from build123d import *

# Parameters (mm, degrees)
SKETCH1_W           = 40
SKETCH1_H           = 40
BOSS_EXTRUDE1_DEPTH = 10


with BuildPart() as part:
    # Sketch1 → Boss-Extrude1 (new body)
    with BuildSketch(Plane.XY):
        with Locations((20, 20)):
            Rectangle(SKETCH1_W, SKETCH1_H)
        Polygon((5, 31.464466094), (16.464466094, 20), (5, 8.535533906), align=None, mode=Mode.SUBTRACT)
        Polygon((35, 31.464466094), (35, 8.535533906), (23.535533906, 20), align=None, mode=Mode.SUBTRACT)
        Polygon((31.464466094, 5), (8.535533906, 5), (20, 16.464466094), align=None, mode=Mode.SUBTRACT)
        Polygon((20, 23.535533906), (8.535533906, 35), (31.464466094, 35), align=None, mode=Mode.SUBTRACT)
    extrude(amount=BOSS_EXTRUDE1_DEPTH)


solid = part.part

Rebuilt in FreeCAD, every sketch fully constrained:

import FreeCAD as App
import Part
import Sketcher
Q = App.Units.Quantity


def add_polygon(sketch, points):
    """Adds a closed chain of lines whose ends are joined by coincident constraints."""
    first, n = sketch.GeometryCount, len(points)
    for a, b in zip(points, points[1:] + points[:1]):
        sketch.addGeometry(Part.LineSegment(App.Vector(*a, 0), App.Vector(*b, 0)), False)
    for i in range(n):
        sketch.addConstraint(Sketcher.Constraint("Coincident", first + i, 2, first + (i + 1) % n, 1))

doc = App.newDocument("Part")
body = doc.addObject("PartDesign::Body", "Body")

sketch1 = body.newObject("Sketcher::SketchObject", "Sketch")
sketch1.AttachmentSupport = (doc.getObject("XY_Plane"), [""])
sketch1.MapMode = "FlatFace"
add_polygon(sketch1, [(0, 40), (0, 0), (40, 0), (40, 40)])
add_polygon(sketch1, [(20, 16), (31, 5), (9, 5)])
add_polygon(sketch1, [(5, 9), (5, 31), (16, 20)])
add_polygon(sketch1, [(24, 20), (35, 31), (35, 9)])
add_polygon(sketch1, [(31, 35), (20, 24), (9, 35)])
sketch1.addConstraint([
    Sketcher.Constraint("Vertical", 0),
    Sketcher.Constraint("Horizontal", 1),
    Sketcher.Constraint("Vertical", 2),
    Sketcher.Constraint("Horizontal", 3),
    Sketcher.Constraint("Horizontal", 5),
    Sketcher.Constraint("Vertical", 7),
    Sketcher.Constraint("Vertical", 11),
    Sketcher.Constraint("Horizontal", 15),
    Sketcher.Constraint("Coincident", 0, 2, -1, 1),
    Sketcher.Constraint("Perpendicular", 4, 6),
    Sketcher.Constraint("Perpendicular", 6, 8),
    Sketcher.Constraint("Perpendicular", 8, 9),
    Sketcher.Constraint("Parallel", 9, 10),
    Sketcher.Constraint("Perpendicular", 10, 12),
    Sketcher.Constraint("Perpendicular", 12, 13),
    Sketcher.Constraint("Perpendicular", 13, 14),
    Sketcher.Constraint("Horizontal", 7, 2, 10, 2),
    Sketcher.Constraint("Horizontal", 9, 2, 11, 2),
    Sketcher.Constraint("Horizontal", 8, 2, 12, 2),
    Sketcher.Constraint("Vertical", 6, 2, 13, 2),
    Sketcher.Constraint("Vertical", 5, 2, 14, 2),
    Sketcher.Constraint("Equal", 3, 0),
    Sketcher.Constraint("Equal", 15, 7),
    Sketcher.Constraint("DistanceX", 1, 1, 1, 2, Q("40 mm")),
    Sketcher.Constraint("DistanceY", -1, 1, 4, 2, Q("5 mm")),
    Sketcher.Constraint("DistanceX", -1, 1, 6, 2, Q("20 mm")),
    Sketcher.Constraint("DistanceX", -1, 1, 7, 2, Q("5 mm")),
    Sketcher.Constraint("DistanceY", -1, 1, 8, 2, Q("20 mm")),
    Sketcher.Constraint("DistanceX", -1, 1, 10, 2, Q("35 mm")),
    Sketcher.Constraint("DistanceY", -1, 1, 14, 2, Q("35 mm")),
    Sketcher.Constraint("DistanceX", 5, 2, 5, 1, Q("22.928932 mm")),
])
pad1 = body.newObject("PartDesign::Pad", "Pad")
pad1.Profile = sketch1
pad1.Length = 10

doc.recompute()
